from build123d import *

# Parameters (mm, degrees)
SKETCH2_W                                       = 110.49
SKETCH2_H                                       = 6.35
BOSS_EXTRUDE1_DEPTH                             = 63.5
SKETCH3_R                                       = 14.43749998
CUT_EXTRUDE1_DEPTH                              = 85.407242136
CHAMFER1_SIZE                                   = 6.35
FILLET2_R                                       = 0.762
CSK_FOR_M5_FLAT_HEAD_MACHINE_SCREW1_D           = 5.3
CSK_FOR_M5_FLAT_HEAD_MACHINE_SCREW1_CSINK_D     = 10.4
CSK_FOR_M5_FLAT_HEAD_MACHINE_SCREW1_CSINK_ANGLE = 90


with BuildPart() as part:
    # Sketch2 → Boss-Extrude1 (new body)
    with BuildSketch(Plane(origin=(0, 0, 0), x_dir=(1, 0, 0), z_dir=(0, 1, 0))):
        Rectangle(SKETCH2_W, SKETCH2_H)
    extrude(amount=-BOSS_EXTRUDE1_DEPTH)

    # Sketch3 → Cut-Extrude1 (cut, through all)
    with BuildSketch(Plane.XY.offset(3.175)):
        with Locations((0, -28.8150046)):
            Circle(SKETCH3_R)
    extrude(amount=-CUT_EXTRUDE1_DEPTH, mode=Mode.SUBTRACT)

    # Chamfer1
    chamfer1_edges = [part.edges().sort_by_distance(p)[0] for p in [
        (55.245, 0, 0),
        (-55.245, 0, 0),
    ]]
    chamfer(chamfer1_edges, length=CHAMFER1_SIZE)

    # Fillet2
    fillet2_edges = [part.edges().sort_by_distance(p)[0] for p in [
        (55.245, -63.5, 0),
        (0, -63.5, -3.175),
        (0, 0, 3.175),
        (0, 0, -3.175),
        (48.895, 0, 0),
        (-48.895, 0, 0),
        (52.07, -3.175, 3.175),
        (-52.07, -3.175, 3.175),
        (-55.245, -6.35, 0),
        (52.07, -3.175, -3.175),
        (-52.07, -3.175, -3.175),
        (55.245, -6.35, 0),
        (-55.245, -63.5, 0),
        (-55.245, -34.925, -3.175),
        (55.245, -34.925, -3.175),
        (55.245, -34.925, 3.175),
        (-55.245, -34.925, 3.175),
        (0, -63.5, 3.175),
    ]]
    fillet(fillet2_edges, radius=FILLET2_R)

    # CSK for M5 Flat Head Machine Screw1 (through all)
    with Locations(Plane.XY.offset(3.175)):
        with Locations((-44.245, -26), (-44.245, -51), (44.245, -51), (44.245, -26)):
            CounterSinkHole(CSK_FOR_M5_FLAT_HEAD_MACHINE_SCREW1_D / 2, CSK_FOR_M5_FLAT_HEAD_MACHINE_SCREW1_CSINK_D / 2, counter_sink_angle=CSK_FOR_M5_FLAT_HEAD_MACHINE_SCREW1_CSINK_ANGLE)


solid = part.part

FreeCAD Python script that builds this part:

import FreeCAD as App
import Part
import Sketcher
from FreeCAD import Vector
Q = App.Units.Quantity


def edges_at(feature, points):
    """Names of the edges that pass closest to the given points."""
    edges = feature.Shape.Edges
    near = lambda p: min(range(len(edges)), key=lambda i: edges[i].distToShape(Part.Vertex(*p))[0])
    return sorted({f"Edge{near(p) + 1}" for p in points})

doc = App.newDocument("Part")
body = doc.addObject("PartDesign::Body", "Body")

# Sketch on XZ plane
sketch1 = body.newObject("Sketcher::SketchObject", "Sketch")
sketch1.AttachmentSupport = (doc.getObject("XZ_Plane"), [""])
sketch1.MapMode = "FlatFace"
sketch1.addGeometry(Part.LineSegment(Vector(-55, -3, 0), Vector(-55, 3, 0)), False)
sketch1.addGeometry(Part.LineSegment(Vector(-55, 3, 0), Vector(55, 3, 0)), False)
sketch1.addGeometry(Part.LineSegment(Vector(55, 3, 0), Vector(55, -3, 0)), False)
sketch1.addGeometry(Part.LineSegment(Vector(55, -3, 0), Vector(-55, -3, 0)), False)
sketch1.addConstraint(Sketcher.Constraint("Coincident", 0, 2, 1, 1))
sketch1.addConstraint(Sketcher.Constraint("Coincident", 1, 2, 2, 1))
sketch1.addConstraint(Sketcher.Constraint("Coincident", 2, 2, 3, 1))
sketch1.addConstraint(Sketcher.Constraint("Coincident", 3, 2, 0, 1))
sketch1.addConstraint(Sketcher.Constraint("Vertical", 0))
sketch1.addConstraint(Sketcher.Constraint("Horizontal", 1))
sketch1.addConstraint(Sketcher.Constraint("Vertical", 2))
sketch1.addConstraint(Sketcher.Constraint("Horizontal", 3))
sketch1.addConstraint(Sketcher.Constraint("Symmetric", 0, 2, 2, 2, -1, 1))
sketch1.addConstraint(Sketcher.Constraint("DistanceX", 1, 1, 1, 2, Q("4.35 in")))
sketch1.addConstraint(Sketcher.Constraint("DistanceY", 0, 1, 0, 2, Q("0.25 in")))
pad1 = body.newObject("PartDesign::Pad", "Pad")
pad1.Profile = sketch1
pad1.Length = Q("2.5 in")

# Sketch on XY plane
sketch2 = body.newObject("Sketcher::SketchObject", "Sketch001")
sketch2.AttachmentSupport = (doc.getObject("XY_Plane"), [""])
sketch2.MapMode = "FlatFace"
sketch2.AttachmentOffset = App.Placement(Vector(0, 0, 0.125 * 25.4), App.Rotation())
sketch2.addGeometry(Part.Circle(Vector(0, -29, 0), Vector(0, 0, 1), 14), False)
sketch2.addConstraint(Sketcher.Constraint("PointOnObject", 0, 3, -2))
sketch2.addConstraint(Sketcher.Constraint("Diameter", 0, Q("28.875 mm")))
sketch2.addConstraint(Sketcher.Constraint("DistanceY", 0, 3, -1, 1, Q("28.815005 mm")))
pocket1 = body.newObject("PartDesign::Pocket", "Pocket")
pocket1.Profile = sketch2
pocket1.Type = "ThroughAll"
doc.recompute()

chamfer = body.newObject("PartDesign::Chamfer", "Chamfer")
chamfer.Base = (pocket1, edges_at(pocket1, [(55.245, 0, 0), (-55.245, 0, 0)]))
chamfer.Size = Q("0.25 in")
doc.recompute()

fillet = body.newObject("PartDesign::Fillet", "Fillet")
fillet.Base = (chamfer, edges_at(chamfer, [
    (55.245, -63.5, 0),
    (0, -63.5, -3.175),
    (0, 0, 3.175),
    (0, 0, -3.175),
    (48.895, 0, 0),
    (-48.895, 0, 0),
    (52.07, -3.175, 3.175),
    (-52.07, -3.175, 3.175),
    (-55.245, -6.35, 0),
    (52.07, -3.175, -3.175),
    (-52.07, -3.175, -3.175),
    (55.245, -6.35, 0),
    (-55.245, -63.5, 0),
    (-55.245, -34.925, -3.175),
    (55.245, -34.925, -3.175),
    (55.245, -34.925, 3.175),
    (-55.245, -34.925, 3.175),
    (0, -63.5, 3.175),
]))
fillet.Radius = Q("0.03 in")

# Sketch on XY plane
sketch3 = body.newObject("Sketcher::SketchObject", "Sketch002")
sketch3.AttachmentSupport = (doc.getObject("XY_Plane"), [""])
sketch3.MapMode = "FlatFace"
sketch3.AttachmentOffset = App.Placement(Vector(0, 0, 0.125 * 25.4), App.Rotation())
sketch3.addGeometry(Part.Circle(Vector(-44.2, -26, 0), Vector(0, 0, 1), 2.6), False)
sketch3.addGeometry(Part.Circle(Vector(-44.2, -51, 0), Vector(0, 0, 1), 2.6), False)
sketch3.addGeometry(Part.Circle(Vector(44.2, -51, 0), Vector(0, 0, 1), 2.6), False)
sketch3.addGeometry(Part.Circle(Vector(44.2, -26, 0), Vector(0, 0, 1), 2.6), False)
sketch3.addConstraint(Sketcher.Constraint("Equal", 0, 1))
sketch3.addConstraint(Sketcher.Constraint("Equal", 1, 2))
sketch3.addConstraint(Sketcher.Constraint("Equal", 2, 3))
sketch3.addConstraint(Sketcher.Constraint("Symmetric", 1, 3, 2, 3, -2))
sketch3.addConstraint(Sketcher.Constraint("Symmetric", 0, 3, 3, 3, -2))
sketch3.addConstraint(Sketcher.Constraint("Vertical", 0, 3, 1, 3))
sketch3.addConstraint(Sketcher.Constraint("Diameter", 0, Q("5.3 mm")))
sketch3.addConstraint(Sketcher.Constraint("DistanceX", 0, 3, -1, 1, Q("44.245 mm")))
sketch3.addConstraint(Sketcher.Constraint("DistanceY", 0, 3, -1, 1, Q("26 mm")))
sketch3.addConstraint(Sketcher.Constraint("DistanceY", 1, 3, -1, 1, Q("51 mm")))
doc.recompute()
hole = body.newObject("PartDesign::Hole", "Hole")
hole.Profile = sketch3
hole.ThreadType = "None"
hole.Diameter = 5.3
hole.DepthType = "ThroughAll"
hole.HoleCutType = "Countersink"
hole.HoleCutDiameter = 10.4
hole.HoleCutCountersinkAngle = 90

doc.recompute()
